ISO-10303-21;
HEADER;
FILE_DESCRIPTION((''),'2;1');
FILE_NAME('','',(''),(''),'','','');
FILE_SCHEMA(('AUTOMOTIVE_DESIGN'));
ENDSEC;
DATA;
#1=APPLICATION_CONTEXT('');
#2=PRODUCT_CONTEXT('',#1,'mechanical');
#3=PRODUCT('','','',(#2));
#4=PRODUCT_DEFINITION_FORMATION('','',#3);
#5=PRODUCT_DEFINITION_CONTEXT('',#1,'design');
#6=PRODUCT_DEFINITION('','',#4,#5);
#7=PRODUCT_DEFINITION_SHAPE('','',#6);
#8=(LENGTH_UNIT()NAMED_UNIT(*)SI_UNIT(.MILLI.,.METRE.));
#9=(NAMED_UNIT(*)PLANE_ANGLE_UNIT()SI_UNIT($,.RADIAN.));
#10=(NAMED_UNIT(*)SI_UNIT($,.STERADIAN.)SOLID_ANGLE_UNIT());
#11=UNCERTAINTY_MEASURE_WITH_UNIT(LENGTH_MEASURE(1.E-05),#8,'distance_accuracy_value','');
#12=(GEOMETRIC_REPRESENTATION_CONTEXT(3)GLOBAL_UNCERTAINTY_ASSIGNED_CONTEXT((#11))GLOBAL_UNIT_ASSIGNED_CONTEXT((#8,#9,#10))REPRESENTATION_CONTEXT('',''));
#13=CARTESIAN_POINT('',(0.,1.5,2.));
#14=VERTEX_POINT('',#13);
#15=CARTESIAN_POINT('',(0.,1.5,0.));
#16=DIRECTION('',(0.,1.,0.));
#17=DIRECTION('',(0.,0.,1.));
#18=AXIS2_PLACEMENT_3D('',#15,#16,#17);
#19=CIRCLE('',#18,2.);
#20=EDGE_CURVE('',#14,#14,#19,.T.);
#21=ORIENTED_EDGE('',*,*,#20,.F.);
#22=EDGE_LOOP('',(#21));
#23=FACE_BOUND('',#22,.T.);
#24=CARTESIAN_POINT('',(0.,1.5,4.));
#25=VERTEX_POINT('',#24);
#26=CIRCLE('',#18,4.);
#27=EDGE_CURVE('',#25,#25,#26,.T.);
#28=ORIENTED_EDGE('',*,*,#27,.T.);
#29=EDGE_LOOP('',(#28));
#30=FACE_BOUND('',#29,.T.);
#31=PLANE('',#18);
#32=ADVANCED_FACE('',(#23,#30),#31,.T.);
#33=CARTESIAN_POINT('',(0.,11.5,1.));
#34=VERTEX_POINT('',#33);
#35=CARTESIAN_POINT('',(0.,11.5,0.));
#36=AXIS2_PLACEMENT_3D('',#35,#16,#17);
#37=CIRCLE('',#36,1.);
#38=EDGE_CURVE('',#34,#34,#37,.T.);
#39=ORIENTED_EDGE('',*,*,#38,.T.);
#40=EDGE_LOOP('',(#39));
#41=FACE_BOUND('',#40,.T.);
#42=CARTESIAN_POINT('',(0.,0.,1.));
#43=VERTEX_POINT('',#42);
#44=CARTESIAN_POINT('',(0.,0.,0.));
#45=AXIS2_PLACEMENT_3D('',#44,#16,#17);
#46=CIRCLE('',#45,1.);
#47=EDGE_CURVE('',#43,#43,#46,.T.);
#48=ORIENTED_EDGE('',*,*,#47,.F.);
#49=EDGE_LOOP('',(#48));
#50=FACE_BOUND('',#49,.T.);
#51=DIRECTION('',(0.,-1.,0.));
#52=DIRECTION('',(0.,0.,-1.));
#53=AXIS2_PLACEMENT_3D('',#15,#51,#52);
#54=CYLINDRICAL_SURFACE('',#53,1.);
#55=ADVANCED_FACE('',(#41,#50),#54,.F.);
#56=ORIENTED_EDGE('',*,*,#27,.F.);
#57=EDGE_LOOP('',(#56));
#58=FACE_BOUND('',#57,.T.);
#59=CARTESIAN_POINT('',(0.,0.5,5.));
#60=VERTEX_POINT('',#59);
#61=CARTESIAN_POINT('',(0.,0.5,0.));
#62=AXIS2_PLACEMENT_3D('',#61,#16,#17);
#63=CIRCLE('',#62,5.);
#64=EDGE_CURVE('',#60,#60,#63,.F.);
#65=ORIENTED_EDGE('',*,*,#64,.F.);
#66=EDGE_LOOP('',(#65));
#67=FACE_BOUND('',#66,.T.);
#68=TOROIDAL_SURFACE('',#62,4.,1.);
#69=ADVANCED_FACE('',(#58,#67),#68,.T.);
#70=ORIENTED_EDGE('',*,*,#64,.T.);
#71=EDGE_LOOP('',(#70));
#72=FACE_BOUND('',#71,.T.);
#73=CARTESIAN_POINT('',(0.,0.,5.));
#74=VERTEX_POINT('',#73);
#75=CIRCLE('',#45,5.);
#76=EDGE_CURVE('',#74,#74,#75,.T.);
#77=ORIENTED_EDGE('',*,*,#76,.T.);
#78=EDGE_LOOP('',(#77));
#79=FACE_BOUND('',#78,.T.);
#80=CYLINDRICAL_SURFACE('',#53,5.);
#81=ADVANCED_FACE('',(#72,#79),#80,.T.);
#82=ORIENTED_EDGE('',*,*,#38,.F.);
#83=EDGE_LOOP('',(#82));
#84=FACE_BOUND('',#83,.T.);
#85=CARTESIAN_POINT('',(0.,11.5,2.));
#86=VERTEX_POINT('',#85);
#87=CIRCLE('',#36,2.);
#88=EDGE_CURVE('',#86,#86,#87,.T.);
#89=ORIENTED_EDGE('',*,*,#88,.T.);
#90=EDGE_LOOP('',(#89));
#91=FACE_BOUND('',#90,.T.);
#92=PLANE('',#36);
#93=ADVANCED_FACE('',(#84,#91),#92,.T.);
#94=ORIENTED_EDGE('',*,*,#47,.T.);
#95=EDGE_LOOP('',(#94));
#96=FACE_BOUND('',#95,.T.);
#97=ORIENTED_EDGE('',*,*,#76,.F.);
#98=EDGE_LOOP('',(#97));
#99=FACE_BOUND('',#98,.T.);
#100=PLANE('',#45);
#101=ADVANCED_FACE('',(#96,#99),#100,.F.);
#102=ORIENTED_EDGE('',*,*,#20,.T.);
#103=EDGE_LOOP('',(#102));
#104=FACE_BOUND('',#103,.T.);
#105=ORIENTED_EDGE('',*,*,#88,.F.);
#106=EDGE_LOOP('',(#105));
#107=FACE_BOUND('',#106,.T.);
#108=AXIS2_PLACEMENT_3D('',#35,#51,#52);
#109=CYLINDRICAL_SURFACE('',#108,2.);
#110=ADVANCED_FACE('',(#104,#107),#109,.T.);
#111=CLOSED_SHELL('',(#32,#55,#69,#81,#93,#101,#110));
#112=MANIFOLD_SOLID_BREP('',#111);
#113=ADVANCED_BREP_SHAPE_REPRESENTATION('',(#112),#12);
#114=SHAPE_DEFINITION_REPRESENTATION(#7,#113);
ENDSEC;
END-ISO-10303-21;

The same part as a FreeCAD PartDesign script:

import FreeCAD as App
import Part
import Sketcher
from FreeCAD import Vector


def edges_at(feature, points):
    """Names of the edges that pass closest to the given points."""
    edges = feature.Shape.Edges
    near = lambda p: min(range(len(edges)), key=lambda i: edges[i].distToShape(Part.Vertex(*p))[0])
    return sorted({f"Edge{near(p) + 1}" for p in points})

doc = App.newDocument("Part")
body = doc.addObject("PartDesign::Body", "Body")

# Sketch on XZ plane
sketch1 = doc.addObject("Sketcher::SketchObject", "Sketch")
body.addObject(sketch1)
sketch1.AttachmentSupport = (doc.XZ_Plane, [""])
sketch1.MapMode = "FlatFace"
sketch1.addGeometry([
    Part.Circle(Vector(0, 0, 0), Vector(0, 0, 1), 5),
    Part.Circle(Vector(0, 0, 0), Vector(0, 0, 1), 1),
], False)
sketch1.addConstraint([
    Sketcher.Constraint("Coincident", 0, 3, -1, 1),
    Sketcher.Constraint("Coincident", 1, 3, -1, 1),
    Sketcher.Constraint("Diameter", 0, 10.0),
    Sketcher.Constraint("Diameter", 1, 2.0),
])
pad1 = doc.addObject("PartDesign::Pad", "Pad")
body.addObject(pad1)
pad1.Profile = sketch1
pad1.Length = 1.5
pad1.Reversed = True
doc.recompute()

fillet = doc.addObject("PartDesign::Fillet", "Fillet")
body.addObject(fillet)
fillet.Base = (pad1, edges_at(pad1, [(0, 1.5, -5)]))
fillet.Radius = 1

# Sketch on XZ plane
sketch2 = doc.addObject("Sketcher::SketchObject", "Sketch001")
body.addObject(sketch2)
sketch2.AttachmentSupport = (doc.XZ_Plane, [""])
sketch2.MapMode = "FlatFace"
sketch2.AttachmentOffset = App.Placement(Vector(0, 0, -1.5), App.Rotation())
sketch2.addGeometry([
    Part.Circle(Vector(0, 0, 0), Vector(0, 0, 1), 2),
    Part.Circle(Vector(0, 0, 0), Vector(0, 0, 1), 1),
], False)
sketch2.addConstraint([
    Sketcher.Constraint("Coincident", 0, 3, -1, 1),
    Sketcher.Constraint("Coincident", 1, 3, -1, 1),
    Sketcher.Constraint("Diameter", 0, 4.0),
    Sketcher.Constraint("Diameter", 1, 2.0),
])
pad2 = doc.addObject("PartDesign::Pad", "Pad001")
body.addObject(pad2)
pad2.Profile = sketch2
pad2.Length = 10
pad2.Reversed = True

doc.recompute()
